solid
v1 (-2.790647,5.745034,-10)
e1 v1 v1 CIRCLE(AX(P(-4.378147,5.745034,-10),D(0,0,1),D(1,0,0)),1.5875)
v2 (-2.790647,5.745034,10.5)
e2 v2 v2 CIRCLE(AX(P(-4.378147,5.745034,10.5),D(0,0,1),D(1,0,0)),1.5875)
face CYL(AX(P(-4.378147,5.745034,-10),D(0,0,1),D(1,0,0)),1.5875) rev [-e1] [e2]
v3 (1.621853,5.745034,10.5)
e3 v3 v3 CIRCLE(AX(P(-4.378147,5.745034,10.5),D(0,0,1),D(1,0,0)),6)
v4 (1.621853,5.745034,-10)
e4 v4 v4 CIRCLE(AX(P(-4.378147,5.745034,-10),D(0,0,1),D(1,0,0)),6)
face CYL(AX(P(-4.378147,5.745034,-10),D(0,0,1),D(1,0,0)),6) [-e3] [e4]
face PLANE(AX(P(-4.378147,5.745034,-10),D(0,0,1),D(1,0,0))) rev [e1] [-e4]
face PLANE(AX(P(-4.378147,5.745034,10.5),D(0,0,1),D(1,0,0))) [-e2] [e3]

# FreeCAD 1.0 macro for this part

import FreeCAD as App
import Part
import Sketcher

V = App.Vector

doc = App.newDocument("Part")
body = doc.addObject("PartDesign::Body", "Body")

# Sketch on XY plane
sketch1 = body.newObject("Sketcher::SketchObject", "Sketch")
sketch1.AttachmentSupport = (doc.getObject("XY_Plane"), [""])
sketch1.MapMode = "FlatFace"
sketch1.addGeometry(Part.Circle(V(-4.378147, 5.745034, 0), V(0, 0, 1), 6), False)
sketch1.addGeometry(Part.Circle(V(-4.378147, 5.745034, 0), V(0, 0, 1), 1.5875), False)
sketch1.addConstraint(Sketcher.Constraint("Coincident", 1, 3, 0, 3))
sketch1.addConstraint(Sketcher.Constraint("Diameter", 0, 12.0))
sketch1.addConstraint(Sketcher.Constraint("Diameter", 1, 3.175))
sketch1.addConstraint(Sketcher.Constraint("DistanceX", 0, 3, -1, 1, 4.378147))
sketch1.addConstraint(Sketcher.Constraint("DistanceY", -1, 1, 0, 3, 5.745034))
pad1 = body.newObject("PartDesign::Pad", "Pad")
pad1.Profile = sketch1
pad1.Type = "TwoLengths"
pad1.Length = 10.5
pad1.Length2 = 10

doc.recompute()
